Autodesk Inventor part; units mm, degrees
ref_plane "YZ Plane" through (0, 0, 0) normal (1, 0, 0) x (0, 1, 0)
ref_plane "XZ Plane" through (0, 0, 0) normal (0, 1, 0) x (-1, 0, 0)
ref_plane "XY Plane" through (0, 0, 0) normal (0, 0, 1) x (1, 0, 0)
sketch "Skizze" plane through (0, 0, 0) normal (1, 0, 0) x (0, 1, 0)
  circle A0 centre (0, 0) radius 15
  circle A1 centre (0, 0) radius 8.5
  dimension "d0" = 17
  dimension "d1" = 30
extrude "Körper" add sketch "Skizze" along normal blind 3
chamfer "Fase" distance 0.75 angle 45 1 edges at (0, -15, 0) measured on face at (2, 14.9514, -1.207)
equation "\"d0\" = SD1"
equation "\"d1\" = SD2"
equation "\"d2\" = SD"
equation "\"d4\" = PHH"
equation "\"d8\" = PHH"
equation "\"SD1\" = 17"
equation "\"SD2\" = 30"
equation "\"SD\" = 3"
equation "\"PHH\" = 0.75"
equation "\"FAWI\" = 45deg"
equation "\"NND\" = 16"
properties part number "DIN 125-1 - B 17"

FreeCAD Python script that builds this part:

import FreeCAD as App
import Part
import Sketcher
from FreeCAD import Vector


def edges_at(feature, points):
    """Names of the edges that pass closest to the given points."""
    edges = feature.Shape.Edges
    near = lambda p: min(range(len(edges)), key=lambda i: edges[i].distToShape(Part.Vertex(*p))[0])
    return sorted({f"Edge{near(p) + 1}" for p in points})

doc = App.newDocument("Part")
body = doc.addObject("PartDesign::Body", "Body")

# Sketch on YZ plane
sketch1 = doc.addObject("Sketcher::SketchObject", "Sketch")
body.addObject(sketch1)
sketch1.AttachmentSupport = (doc.YZ_Plane, [""])
sketch1.MapMode = "FlatFace"
sketch1.addGeometry(Part.Circle(Vector(0, 0, 0), Vector(0, 0, 1), 15), False)
sketch1.addGeometry(Part.Circle(Vector(0, 0, 0), Vector(0, 0, 1), 8.5), False)
sketch1.addConstraint(Sketcher.Constraint("Coincident", 0, 3, -1, 1))
sketch1.addConstraint(Sketcher.Constraint("Coincident", 1, 3, -1, 1))
sketch1.addConstraint(Sketcher.Constraint("Diameter", 0, 30.0))
sketch1.addConstraint(Sketcher.Constraint("Diameter", 1, 17.0))
pad1 = doc.addObject("PartDesign::Pad", "Pad")
body.addObject(pad1)
pad1.Profile = sketch1
pad1.Length = 3
doc.recompute()

chamfer = doc.addObject("PartDesign::Chamfer", "Chamfer")
body.addObject(chamfer)
chamfer.Base = (pad1, edges_at(pad1, [(0, -15, 0)]))
chamfer.Size = 0.75

doc.recompute()
